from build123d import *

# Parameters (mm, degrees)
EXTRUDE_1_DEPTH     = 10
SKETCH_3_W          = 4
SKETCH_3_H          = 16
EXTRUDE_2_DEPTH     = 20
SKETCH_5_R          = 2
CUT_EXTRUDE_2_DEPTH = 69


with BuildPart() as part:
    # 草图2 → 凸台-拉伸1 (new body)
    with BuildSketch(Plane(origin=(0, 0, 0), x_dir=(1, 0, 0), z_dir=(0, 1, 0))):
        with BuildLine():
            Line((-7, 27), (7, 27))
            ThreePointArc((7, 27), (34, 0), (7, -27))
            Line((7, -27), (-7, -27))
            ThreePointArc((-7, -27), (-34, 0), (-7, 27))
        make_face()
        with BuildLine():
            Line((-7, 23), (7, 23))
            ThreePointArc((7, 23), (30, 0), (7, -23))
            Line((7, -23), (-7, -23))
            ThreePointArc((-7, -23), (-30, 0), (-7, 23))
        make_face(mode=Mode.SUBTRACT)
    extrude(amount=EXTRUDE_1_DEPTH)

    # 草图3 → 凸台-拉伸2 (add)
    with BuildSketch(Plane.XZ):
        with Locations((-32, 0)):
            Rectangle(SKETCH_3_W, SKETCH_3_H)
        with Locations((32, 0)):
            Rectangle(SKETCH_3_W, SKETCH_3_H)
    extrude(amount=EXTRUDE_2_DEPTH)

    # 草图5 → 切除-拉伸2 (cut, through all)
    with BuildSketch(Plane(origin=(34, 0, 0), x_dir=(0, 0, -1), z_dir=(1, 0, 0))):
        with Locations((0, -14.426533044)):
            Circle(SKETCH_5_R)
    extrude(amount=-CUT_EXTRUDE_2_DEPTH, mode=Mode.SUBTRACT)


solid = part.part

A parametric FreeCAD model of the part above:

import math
import FreeCAD as App
import Part
import Sketcher

V = App.Vector
Q = App.Units.Quantity


def add_polygon(sketch, points):
    """Adds a closed chain of lines whose ends are joined by coincident constraints."""
    first, n = sketch.GeometryCount, len(points)
    for a, b in zip(points, points[1:] + points[:1]):
        sketch.addGeometry(Part.LineSegment(App.Vector(*a, 0), App.Vector(*b, 0)), False)
    for i in range(n):
        sketch.addConstraint(Sketcher.Constraint("Coincident", first + i, 2, first + (i + 1) % n, 1))

doc = App.newDocument("Part")
body = doc.addObject("PartDesign::Body", "Body")

sketch1 = body.newObject("Sketcher::SketchObject", "Sketch")
sketch1.AttachmentSupport = (doc.getObject("XZ_Plane"), [""])
sketch1.MapMode = "FlatFace"
sketch1.addGeometry([
    Part.LineSegment(V(7, -27, 0), V(-7, -27, 0)),
    Part.ArcOfCircle(Part.Circle(V(-7, 0, 0), V(0, 0, 1), 27), math.radians(90), math.radians(270)),
    Part.LineSegment(V(-7, 27, 0), V(7, 27, 0)),
    Part.ArcOfCircle(Part.Circle(V(7, 0, 0), V(0, 0, 1), 27), math.radians(-90), math.radians(90)),
    Part.LineSegment(V(-7, -23, 0), V(7, -23, 0)),
    Part.ArcOfCircle(Part.Circle(V(7, 0, 0), V(0, 0, 1), 23), math.radians(-90), math.radians(90)),
    Part.LineSegment(V(7, 23, 0), V(-7, 23, 0)),
    Part.ArcOfCircle(Part.Circle(V(-7, 0, 0), V(0, 0, 1), 23), math.radians(90), math.radians(270)),
], False)
sketch1.addConstraint([
    Sketcher.Constraint("Tangent", 0, 2, 1, 2),
    Sketcher.Constraint("Tangent", 1, 1, 2, 1),
    Sketcher.Constraint("Tangent", 2, 2, 3, 2),
    Sketcher.Constraint("Tangent", 3, 1, 0, 1),
    Sketcher.Constraint("Tangent", 4, 2, 5, 1),
    Sketcher.Constraint("Tangent", 5, 2, 6, 1),
    Sketcher.Constraint("Tangent", 6, 2, 7, 1),
    Sketcher.Constraint("Tangent", 7, 2, 4, 1),
    Sketcher.Constraint("Horizontal", 0),
    Sketcher.Constraint("Horizontal", 2),
    Sketcher.Constraint("Horizontal", 4),
    Sketcher.Constraint("Horizontal", 6),
    Sketcher.Constraint("Coincident", 5, 3, 3, 3),
    Sketcher.Constraint("Symmetric", 1, 3, 3, 3, -1, 1),
    Sketcher.Constraint("Vertical", 7, 3, 0, 2),
    Sketcher.Constraint("Radius", 1, Q("27 mm")),
    Sketcher.Constraint("Radius", 5, Q("23 mm")),
    Sketcher.Constraint("DistanceX", 0, 2, 0, 1, Q("14 mm")),
])
pad1 = body.newObject("PartDesign::Pad", "Pad")
pad1.Profile = sketch1
pad1.Length = 10
pad1.Reversed = True

sketch2 = body.newObject("Sketcher::SketchObject", "Sketch001")
sketch2.AttachmentSupport = (doc.getObject("XZ_Plane"), [""])
sketch2.MapMode = "FlatFace"
add_polygon(sketch2, [(-34, 8), (-34, -8), (-30, -8), (-30, 8)])
add_polygon(sketch2, [(30, 8), (30, -8), (34, -8), (34, 8)])
sketch2.addConstraint([
    Sketcher.Constraint("Vertical", 0),
    Sketcher.Constraint("Horizontal", 1),
    Sketcher.Constraint("Vertical", 2),
    Sketcher.Constraint("Horizontal", 3),
    Sketcher.Constraint("Vertical", 4),
    Sketcher.Constraint("Horizontal", 5),
    Sketcher.Constraint("Vertical", 6),
    Sketcher.Constraint("Horizontal", 7),
    Sketcher.Constraint("Symmetric", 2, 2, 4, 2, -1, 1),
    Sketcher.Constraint("Symmetric", 0, 2, 6, 2, -1, 1),
    Sketcher.Constraint("Horizontal", 1, 2, 4, 2),
    Sketcher.Constraint("DistanceX", 1, 1, 1, 2, Q("4 mm")),
    Sketcher.Constraint("DistanceY", 0, 2, 0, 1, Q("16 mm")),
    Sketcher.Constraint("DistanceX", 0, 2, -1, 1, Q("34 mm")),
])
pad2 = body.newObject("PartDesign::Pad", "Pad001")
pad2.Profile = sketch2
pad2.Length = 20

sketch3 = body.newObject("Sketcher::SketchObject", "Sketch002")
sketch3.AttachmentSupport = (doc.getObject("YZ_Plane"), [""])
sketch3.MapMode = "FlatFace"
sketch3.AttachmentOffset = App.Placement(V(0, 0, 34), App.Rotation())
sketch3.addGeometry(Part.Circle(V(-14.4, 0, 0), V(0, 0, 1), 2), False)
sketch3.addConstraint([
    Sketcher.Constraint("PointOnObject", 0, 3, -1),
    Sketcher.Constraint("Diameter", 0, Q("4 mm")),
    Sketcher.Constraint("DistanceX", 0, 3, -1, 1, Q("14.426533 mm")),
])
pocket1 = body.newObject("PartDesign::Pocket", "Pocket")
pocket1.Profile = sketch3
pocket1.Type = "ThroughAll"

doc.recompute()
